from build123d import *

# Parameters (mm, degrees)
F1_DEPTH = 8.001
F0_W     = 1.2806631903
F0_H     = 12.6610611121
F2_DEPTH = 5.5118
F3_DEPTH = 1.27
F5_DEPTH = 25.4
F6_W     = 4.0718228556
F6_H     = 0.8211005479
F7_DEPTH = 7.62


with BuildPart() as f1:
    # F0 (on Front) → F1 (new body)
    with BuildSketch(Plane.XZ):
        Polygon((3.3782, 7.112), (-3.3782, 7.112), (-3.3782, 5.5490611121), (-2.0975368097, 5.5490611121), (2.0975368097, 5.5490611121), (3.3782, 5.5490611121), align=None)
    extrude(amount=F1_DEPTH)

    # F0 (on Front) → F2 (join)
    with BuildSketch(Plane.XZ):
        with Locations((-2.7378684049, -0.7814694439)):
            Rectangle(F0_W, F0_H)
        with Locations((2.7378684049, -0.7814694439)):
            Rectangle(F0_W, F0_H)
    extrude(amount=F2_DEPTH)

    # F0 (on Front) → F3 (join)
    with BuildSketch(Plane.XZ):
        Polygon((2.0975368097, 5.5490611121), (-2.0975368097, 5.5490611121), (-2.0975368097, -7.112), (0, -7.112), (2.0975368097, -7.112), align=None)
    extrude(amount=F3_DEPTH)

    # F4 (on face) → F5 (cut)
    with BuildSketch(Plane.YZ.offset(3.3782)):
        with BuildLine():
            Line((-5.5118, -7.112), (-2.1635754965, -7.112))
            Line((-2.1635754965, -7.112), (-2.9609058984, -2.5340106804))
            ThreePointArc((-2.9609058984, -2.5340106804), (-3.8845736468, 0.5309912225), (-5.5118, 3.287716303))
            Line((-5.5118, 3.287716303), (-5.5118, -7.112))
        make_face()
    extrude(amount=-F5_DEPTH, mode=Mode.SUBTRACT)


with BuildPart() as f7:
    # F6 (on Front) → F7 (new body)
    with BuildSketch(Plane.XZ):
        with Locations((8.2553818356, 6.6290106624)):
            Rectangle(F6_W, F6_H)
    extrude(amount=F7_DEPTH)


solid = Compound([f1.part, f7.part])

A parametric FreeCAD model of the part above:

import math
import FreeCAD as App
import Part
import Sketcher
from FreeCAD import Vector
Q = App.Units.Quantity

doc = App.newDocument("Part")
params = doc.addObject("Spreadsheet::Sheet", "Params")
for row, (alias, value) in enumerate([
    ("sketch1_width", "0.266 in"),
    ("pad1_length", "0.315 in"),
    ("pad2_length", "0.217 in"),
    ("pad3_length", "0.05 in"),
    ("pocket1_length", "1 in"),
    ("pad4_length", "0.3 in"),
], start=1):
    params.set(f"A{row}", alias)
    params.set(f"B{row}", "=" + value)
    params.setAlias(f"B{row}", alias)

body = doc.addObject("PartDesign::Body", "Body")

sketch1 = doc.addObject("Sketcher::SketchObject", "Sketch")
body.addObject(sketch1)
sketch1.AttachmentSupport = (doc.XZ_Plane, [""])
sketch1.MapMode = "FlatFace"
sketch1.addGeometry([
    Part.LineSegment(Vector(3.4, 7.1, 0), Vector(-3.4, 7.1, 0)),
    Part.LineSegment(Vector(-3.4, 7.1, 0), Vector(-3.4, 5.5, 0)),
    Part.LineSegment(Vector(-3.4, 5.5, 0), Vector(3.4, 5.5, 0)),
    Part.LineSegment(Vector(3.4, 5.5, 0), Vector(3.4, 7.1, 0)),
], False)
sketch1.addConstraint([
    Sketcher.Constraint("Coincident", 0, 2, 1, 1),
    Sketcher.Constraint("Coincident", 1, 2, 2, 1),
    Sketcher.Constraint("Coincident", 2, 2, 3, 1),
    Sketcher.Constraint("Coincident", 3, 2, 0, 1),
    Sketcher.Constraint("Horizontal", 0),
    Sketcher.Constraint("Vertical", 1),
    Sketcher.Constraint("Horizontal", 2),
    Sketcher.Constraint("Vertical", 3),
    Sketcher.Constraint("DistanceX", 0, 2, 0, 1, Q("0.266 in")),
    Sketcher.Constraint("DistanceY", -1, 1, 0, 2, Q("0.28 in")),
    Sketcher.Constraint("DistanceX", 0, 2, -1, 1, Q("0.133 in")),
    Sketcher.Constraint("DistanceY", 1, 2, 1, 1, Q("1.562939 mm")),
])
sketch1.setExpression("Constraints[8]", "Params.sketch1_width")
pad1 = doc.addObject("PartDesign::Pad", "Pad")
body.addObject(pad1)
pad1.Profile = sketch1
pad1.setExpression("Length", "Params.pad1_length")

sketch2 = doc.addObject("Sketcher::SketchObject", "Sketch001")
body.addObject(sketch2)
sketch2.AttachmentSupport = (doc.XZ_Plane, [""])
sketch2.MapMode = "FlatFace"
sketch2.addGeometry([
    Part.LineSegment(Vector(-3.4, 5.5, 0), Vector(-3.4, -7.1, 0)),
    Part.LineSegment(Vector(-3.4, -7.1, 0), Vector(-2.1, -7.1, 0)),
    Part.LineSegment(Vector(-2.1, -7.1, 0), Vector(-2.1, 5.5, 0)),
    Part.LineSegment(Vector(-2.1, 5.5, 0), Vector(-3.4, 5.5, 0)),
    Part.LineSegment(Vector(2.1, 5.5, 0), Vector(2.1, -7.1, 0)),
    Part.LineSegment(Vector(2.1, -7.1, 0), Vector(3.4, -7.1, 0)),
    Part.LineSegment(Vector(3.4, -7.1, 0), Vector(3.4, 5.5, 0)),
    Part.LineSegment(Vector(3.4, 5.5, 0), Vector(2.1, 5.5, 0)),
], False)
sketch2.addConstraint([
    Sketcher.Constraint("Coincident", 0, 2, 1, 1),
    Sketcher.Constraint("Coincident", 1, 2, 2, 1),
    Sketcher.Constraint("Coincident", 2, 2, 3, 1),
    Sketcher.Constraint("Coincident", 3, 2, 0, 1),
    Sketcher.Constraint("Coincident", 4, 2, 5, 1),
    Sketcher.Constraint("Coincident", 5, 2, 6, 1),
    Sketcher.Constraint("Coincident", 6, 2, 7, 1),
    Sketcher.Constraint("Coincident", 7, 2, 4, 1),
    Sketcher.Constraint("Vertical", 0),
    Sketcher.Constraint("Horizontal", 1),
    Sketcher.Constraint("Vertical", 2),
    Sketcher.Constraint("Horizontal", 3),
    Sketcher.Constraint("Vertical", 4),
    Sketcher.Constraint("Horizontal", 5),
    Sketcher.Constraint("Vertical", 6),
    Sketcher.Constraint("Horizontal", 7),
    Sketcher.Constraint("Symmetric", 1, 2, 4, 2, -2),
    Sketcher.Constraint("Symmetric", 3, 2, 6, 2, -2),
    Sketcher.Constraint("DistanceY", 0, 2, -1, 1, Q("0.28 in")),
    Sketcher.Constraint("DistanceX", 0, 2, -1, 1, Q("0.133 in")),
    Sketcher.Constraint("DistanceY", 0, 2, 0, 1, Q("12.661061 mm")),
    Sketcher.Constraint("DistanceX", 1, 1, 1, 2, Q("1.280663 mm")),
])
pad2 = doc.addObject("PartDesign::Pad", "Pad001")
body.addObject(pad2)
pad2.Profile = sketch2
pad2.setExpression("Length", "Params.pad2_length")

sketch3 = doc.addObject("Sketcher::SketchObject", "Sketch002")
body.addObject(sketch3)
sketch3.AttachmentSupport = (doc.XZ_Plane, [""])
sketch3.MapMode = "FlatFace"
sketch3.addGeometry([
    Part.LineSegment(Vector(2.1, 5.5, 0), Vector(-2.1, 5.5, 0)),
    Part.LineSegment(Vector(-2.1, 5.5, 0), Vector(-2.1, -7.1, 0)),
    Part.LineSegment(Vector(-2.1, -7.1, 0), Vector(2.1, -7.1, 0)),
    Part.LineSegment(Vector(2.1, -7.1, 0), Vector(2.1, 5.5, 0)),
], False)
sketch3.addConstraint([
    Sketcher.Constraint("Coincident", 0, 2, 1, 1),
    Sketcher.Constraint("Coincident", 1, 2, 2, 1),
    Sketcher.Constraint("Coincident", 2, 2, 3, 1),
    Sketcher.Constraint("Coincident", 3, 2, 0, 1),
    Sketcher.Constraint("Horizontal", 0),
    Sketcher.Constraint("Vertical", 1),
    Sketcher.Constraint("Horizontal", 2),
    Sketcher.Constraint("Vertical", 3),
    Sketcher.Constraint("DistanceY", 1, 2, -1, 1, Q("0.28 in")),
    Sketcher.Constraint("DistanceY", 1, 2, 1, 1, Q("12.661061 mm")),
    Sketcher.Constraint("DistanceX", 0, 2, 0, 1, Q("4.195074 mm")),
    Sketcher.Constraint("DistanceX", 0, 2, -1, 1, Q("2.097537 mm")),
])
pad3 = doc.addObject("PartDesign::Pad", "Pad002")
body.addObject(pad3)
pad3.Profile = sketch3
pad3.setExpression("Length", "Params.pad3_length")

sketch4 = doc.addObject("Sketcher::SketchObject", "Sketch003")
body.addObject(sketch4)
sketch4.AttachmentSupport = (doc.YZ_Plane, [""])
sketch4.MapMode = "FlatFace"
sketch4.AttachmentOffset = App.Placement(Vector(0, 0, 0.133 * 25.4), App.Rotation())
sketch4.addGeometry([
    Part.LineSegment(Vector(-5.5, -7.1, 0), Vector(-2.2, -7.1, 0)),
    Part.LineSegment(Vector(-2.2, -7.1, 0), Vector(-3, -2.5, 0)),
    Part.ArcOfCircle(Part.Circle(Vector(-16.1, -4.8, 0), Vector(0, 0, 1), 13.3), math.radians(10), math.radians(37)),
    Part.LineSegment(Vector(-5.5, 3.3, 0), Vector(-5.5, -7.1, 0)),
], False)
sketch4.addConstraint([
    Sketcher.Constraint("Coincident", 0, 2, 1, 1),
    Sketcher.Constraint("Tangent", 1, 2, 2, 1),
    Sketcher.Constraint("Coincident", 2, 2, 3, 1),
    Sketcher.Constraint("Coincident", 3, 2, 0, 1),
    Sketcher.Constraint("Horizontal", 0),
    Sketcher.Constraint("Vertical", 3),
    Sketcher.Constraint("DistanceY", 0, 2, -1, 1, Q("0.28 in")),
    Sketcher.Constraint("DistanceX", 2, 2, -1, 1, Q("0.217 in")),
    Sketcher.Constraint("Radius", 2, Q("13.340646 mm")),
    Sketcher.Constraint("DistanceX", 2, 3, 1, 2, Q("13.142799 mm")),
    Sketcher.Constraint("DistanceX", 0, 1, 0, 2, Q("3.348225 mm")),
    Sketcher.Constraint("DistanceY", 3, 2, 3, 1, Q("10.399716 mm")),
])
pocket1 = doc.addObject("PartDesign::Pocket", "Pocket")
body.addObject(pocket1)
pocket1.Profile = sketch4
pocket1.setExpression("Length", "Params.pocket1_length")
body2 = doc.addObject("PartDesign::Body", "Body001")

sketch5 = doc.addObject("Sketcher::SketchObject", "Sketch004")
body2.addObject(sketch5)
sketch5.AttachmentSupport = (doc.getObject("XZ_Plane001"), [""])
sketch5.MapMode = "FlatFace"
sketch5.addGeometry([
    Part.LineSegment(Vector(6.2, 7, 0), Vector(6.2, 6.2, 0)),
    Part.LineSegment(Vector(6.2, 6.2, 0), Vector(10.3, 6.2, 0)),
    Part.LineSegment(Vector(10.3, 6.2, 0), Vector(10.3, 7, 0)),
    Part.LineSegment(Vector(10.3, 7, 0), Vector(6.2, 7, 0)),
], False)
sketch5.addConstraint([
    Sketcher.Constraint("Coincident", 0, 2, 1, 1),
    Sketcher.Constraint("Coincident", 1, 2, 2, 1),
    Sketcher.Constraint("Coincident", 2, 2, 3, 1),
    Sketcher.Constraint("Coincident", 3, 2, 0, 1),
    Sketcher.Constraint("Vertical", 0),
    Sketcher.Constraint("Horizontal", 1),
    Sketcher.Constraint("Vertical", 2),
    Sketcher.Constraint("Horizontal", 3),
    Sketcher.Constraint("DistanceY", 0, 2, 0, 1, Q("0.821101 mm")),
    Sketcher.Constraint("DistanceX", 1, 1, 1, 2, Q("4.071823 mm")),
    Sketcher.Constraint("DistanceX", -1, 1, 0, 2, Q("6.21947 mm")),
    Sketcher.Constraint("DistanceY", -1, 1, 0, 2, Q("6.21846 mm")),
])
pad4 = doc.addObject("PartDesign::Pad", "Pad003")
body2.addObject(pad4)
pad4.Profile = sketch5
pad4.setExpression("Length", "Params.pad4_length")

doc.recompute()
